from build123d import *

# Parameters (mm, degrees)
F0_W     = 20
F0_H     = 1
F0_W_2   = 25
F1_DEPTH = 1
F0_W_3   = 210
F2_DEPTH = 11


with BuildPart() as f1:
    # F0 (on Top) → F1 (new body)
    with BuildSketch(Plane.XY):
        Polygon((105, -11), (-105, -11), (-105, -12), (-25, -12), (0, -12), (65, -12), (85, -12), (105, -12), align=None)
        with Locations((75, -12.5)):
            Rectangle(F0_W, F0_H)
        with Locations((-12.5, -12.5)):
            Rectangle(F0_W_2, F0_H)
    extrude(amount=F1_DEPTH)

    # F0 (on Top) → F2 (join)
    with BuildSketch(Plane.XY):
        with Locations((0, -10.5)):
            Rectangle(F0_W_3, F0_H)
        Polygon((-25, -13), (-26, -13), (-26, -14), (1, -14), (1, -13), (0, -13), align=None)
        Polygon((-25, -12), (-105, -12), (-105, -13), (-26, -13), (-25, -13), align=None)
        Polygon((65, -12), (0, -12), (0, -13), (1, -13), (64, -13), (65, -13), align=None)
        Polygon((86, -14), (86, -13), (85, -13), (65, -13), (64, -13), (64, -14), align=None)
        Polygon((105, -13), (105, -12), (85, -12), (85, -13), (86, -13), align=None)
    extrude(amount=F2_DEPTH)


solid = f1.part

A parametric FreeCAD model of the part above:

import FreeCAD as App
import Part
import Sketcher

V = App.Vector
Q = App.Units.Quantity


def add_polygon(sketch, points):
    """Adds a closed chain of lines whose ends are joined by coincident constraints."""
    first, n = sketch.GeometryCount, len(points)
    for a, b in zip(points, points[1:] + points[:1]):
        sketch.addGeometry(Part.LineSegment(App.Vector(*a, 0), App.Vector(*b, 0)), False)
    for i in range(n):
        sketch.addConstraint(Sketcher.Constraint("Coincident", first + i, 2, first + (i + 1) % n, 1))

doc = App.newDocument("Part")
body = doc.addObject("PartDesign::Body", "Body")

# Sketch on XY plane
sketch1 = doc.addObject("Sketcher::SketchObject", "Sketch")
body.addObject(sketch1)
sketch1.AttachmentSupport = (doc.XY_Plane, [""])
sketch1.MapMode = "FlatFace"
add_polygon(sketch1, [(105, -11), (-105, -11), (-105, -12), (-25, -12), (-25, -13), (0, -13), (0, -12), (65, -12), (65, -13), (85, -13), (85, -12), (105, -12)])  # lines 0-11
sketch1.addConstraint([
    Sketcher.Constraint("Horizontal", 0),
    Sketcher.Constraint("Vertical", 1),
    Sketcher.Constraint("Horizontal", 2),
    Sketcher.Constraint("Vertical", 3),
    Sketcher.Constraint("Horizontal", 4),
    Sketcher.Constraint("Vertical", 5),
    Sketcher.Constraint("Horizontal", 6),
    Sketcher.Constraint("Vertical", 7),
    Sketcher.Constraint("Horizontal", 8),
    Sketcher.Constraint("Vertical", 9),
    Sketcher.Constraint("Horizontal", 10),
    Sketcher.Constraint("Vertical", 11),
    Sketcher.Constraint("Symmetric", 1, 2, 10, 2, -2),
    Sketcher.Constraint("PointOnObject", 4, 2, -2),
    Sketcher.Constraint("Horizontal", 2, 2, 5, 2),
    Sketcher.Constraint("Horizontal", 4, 2, 7, 2),
    Sketcher.Constraint("Equal", 8, 10),
    Sketcher.Constraint("Equal", 1, 3),
    Sketcher.Constraint("DistanceX", 0, 2, 0, 1, Q("210 mm")),
    Sketcher.Constraint("DistanceX", 2, 1, 2, 2, Q("80 mm")),
    Sketcher.Constraint("DistanceX", 6, 1, 6, 2, Q("65 mm")),
    Sketcher.Constraint("DistanceY", 1, 2, 1, 1, Q("1 mm")),
    Sketcher.Constraint("DistanceY", 0, 2, -1, 1, Q("11 mm")),
])
pad1 = doc.addObject("PartDesign::Pad", "Pad")
body.addObject(pad1)
pad1.Profile = sketch1
pad1.Length = 1

# Sketch on XY plane
sketch2 = doc.addObject("Sketcher::SketchObject", "Sketch001")
body.addObject(sketch2)
sketch2.AttachmentSupport = (doc.XY_Plane, [""])
sketch2.MapMode = "FlatFace"
add_polygon(sketch2, [(-105, -10), (-105, -11), (105, -11), (105, -10)])  # lines 0-3
add_polygon(sketch2, [(-26, -13), (-26, -14), (1, -14), (1, -13), (64, -13), (64, -14), (86, -14), (86, -13), (105, -13), (105, -12), (85, -12), (85, -13), (65, -13), (65, -12), (0, -12), (0, -13), (-25, -13), (-25, -12), (-105, -12), (-105, -13)])  # lines 4-23
sketch2.addConstraint([
    Sketcher.Constraint("Vertical", 0),
    Sketcher.Constraint("Horizontal", 1),
    Sketcher.Constraint("Vertical", 2),
    Sketcher.Constraint("Horizontal", 3),
    Sketcher.Constraint("Vertical", 4),
    Sketcher.Constraint("Horizontal", 5),
    Sketcher.Constraint("Vertical", 6),
    Sketcher.Constraint("Horizontal", 7),
    Sketcher.Constraint("Vertical", 8),
    Sketcher.Constraint("Horizontal", 9),
    Sketcher.Constraint("Vertical", 10),
    Sketcher.Constraint("Horizontal", 11),
    Sketcher.Constraint("Vertical", 12),
    Sketcher.Constraint("Horizontal", 13),
    Sketcher.Constraint("Vertical", 14),
    Sketcher.Constraint("Horizontal", 15),
    Sketcher.Constraint("Vertical", 16),
    Sketcher.Constraint("Horizontal", 17),
    Sketcher.Constraint("Vertical", 18),
    Sketcher.Constraint("Horizontal", 19),
    Sketcher.Constraint("Vertical", 20),
    Sketcher.Constraint("Horizontal", 21),
    Sketcher.Constraint("Vertical", 22),
    Sketcher.Constraint("Horizontal", 23),
    Sketcher.Constraint("Symmetric", 12, 2, 21, 2, -2),
    Sketcher.Constraint("PointOnObject", 17, 2, -2),
    Sketcher.Constraint("Horizontal", 5, 2, 8, 2),
    Sketcher.Constraint("Horizontal", 7, 2, 10, 2),
    Sketcher.Constraint("Horizontal", 11, 2, 14, 2),
    Sketcher.Constraint("Horizontal", 13, 2, 16, 2),
    Sketcher.Constraint("Horizontal", 15, 2, 18, 2),
    Sketcher.Constraint("Horizontal", 19, 2, 22, 2),
    Sketcher.Constraint("Vertical", 2, 2, 11, 2),
    Sketcher.Constraint("Vertical", 3, 2, 21, 2),
    Sketcher.Constraint("Equal", 13, 15),
    Sketcher.Constraint("Equal", 2, 4),
    Sketcher.Constraint("Equal", 10, 12),
    Sketcher.Constraint("DistanceX", 1, 1, 1, 2, Q("210 mm")),
    Sketcher.Constraint("DistanceX", 5, 1, 5, 2, Q("27 mm")),
    Sketcher.Constraint("DistanceX", 7, 1, 7, 2, Q("63 mm")),
    Sketcher.Constraint("DistanceX", 9, 1, 9, 2, Q("22 mm")),
    Sketcher.Constraint("DistanceX", 11, 1, 11, 2, Q("19 mm")),
    Sketcher.Constraint("DistanceX", 13, 2, 13, 1, Q("20 mm")),
    Sketcher.Constraint("DistanceX", 19, 2, 19, 1, Q("25 mm")),
    Sketcher.Constraint("DistanceY", 0, 2, 0, 1, Q("1 mm")),
    Sketcher.Constraint("DistanceY", 0, 2, -1, 1, Q("11 mm")),
    Sketcher.Constraint("DistanceY", 4, 2, -1, 1, Q("14 mm")),
])
pad2 = doc.addObject("PartDesign::Pad", "Pad001")
body.addObject(pad2)
pad2.Profile = sketch2
pad2.Length = 11

doc.recompute()
